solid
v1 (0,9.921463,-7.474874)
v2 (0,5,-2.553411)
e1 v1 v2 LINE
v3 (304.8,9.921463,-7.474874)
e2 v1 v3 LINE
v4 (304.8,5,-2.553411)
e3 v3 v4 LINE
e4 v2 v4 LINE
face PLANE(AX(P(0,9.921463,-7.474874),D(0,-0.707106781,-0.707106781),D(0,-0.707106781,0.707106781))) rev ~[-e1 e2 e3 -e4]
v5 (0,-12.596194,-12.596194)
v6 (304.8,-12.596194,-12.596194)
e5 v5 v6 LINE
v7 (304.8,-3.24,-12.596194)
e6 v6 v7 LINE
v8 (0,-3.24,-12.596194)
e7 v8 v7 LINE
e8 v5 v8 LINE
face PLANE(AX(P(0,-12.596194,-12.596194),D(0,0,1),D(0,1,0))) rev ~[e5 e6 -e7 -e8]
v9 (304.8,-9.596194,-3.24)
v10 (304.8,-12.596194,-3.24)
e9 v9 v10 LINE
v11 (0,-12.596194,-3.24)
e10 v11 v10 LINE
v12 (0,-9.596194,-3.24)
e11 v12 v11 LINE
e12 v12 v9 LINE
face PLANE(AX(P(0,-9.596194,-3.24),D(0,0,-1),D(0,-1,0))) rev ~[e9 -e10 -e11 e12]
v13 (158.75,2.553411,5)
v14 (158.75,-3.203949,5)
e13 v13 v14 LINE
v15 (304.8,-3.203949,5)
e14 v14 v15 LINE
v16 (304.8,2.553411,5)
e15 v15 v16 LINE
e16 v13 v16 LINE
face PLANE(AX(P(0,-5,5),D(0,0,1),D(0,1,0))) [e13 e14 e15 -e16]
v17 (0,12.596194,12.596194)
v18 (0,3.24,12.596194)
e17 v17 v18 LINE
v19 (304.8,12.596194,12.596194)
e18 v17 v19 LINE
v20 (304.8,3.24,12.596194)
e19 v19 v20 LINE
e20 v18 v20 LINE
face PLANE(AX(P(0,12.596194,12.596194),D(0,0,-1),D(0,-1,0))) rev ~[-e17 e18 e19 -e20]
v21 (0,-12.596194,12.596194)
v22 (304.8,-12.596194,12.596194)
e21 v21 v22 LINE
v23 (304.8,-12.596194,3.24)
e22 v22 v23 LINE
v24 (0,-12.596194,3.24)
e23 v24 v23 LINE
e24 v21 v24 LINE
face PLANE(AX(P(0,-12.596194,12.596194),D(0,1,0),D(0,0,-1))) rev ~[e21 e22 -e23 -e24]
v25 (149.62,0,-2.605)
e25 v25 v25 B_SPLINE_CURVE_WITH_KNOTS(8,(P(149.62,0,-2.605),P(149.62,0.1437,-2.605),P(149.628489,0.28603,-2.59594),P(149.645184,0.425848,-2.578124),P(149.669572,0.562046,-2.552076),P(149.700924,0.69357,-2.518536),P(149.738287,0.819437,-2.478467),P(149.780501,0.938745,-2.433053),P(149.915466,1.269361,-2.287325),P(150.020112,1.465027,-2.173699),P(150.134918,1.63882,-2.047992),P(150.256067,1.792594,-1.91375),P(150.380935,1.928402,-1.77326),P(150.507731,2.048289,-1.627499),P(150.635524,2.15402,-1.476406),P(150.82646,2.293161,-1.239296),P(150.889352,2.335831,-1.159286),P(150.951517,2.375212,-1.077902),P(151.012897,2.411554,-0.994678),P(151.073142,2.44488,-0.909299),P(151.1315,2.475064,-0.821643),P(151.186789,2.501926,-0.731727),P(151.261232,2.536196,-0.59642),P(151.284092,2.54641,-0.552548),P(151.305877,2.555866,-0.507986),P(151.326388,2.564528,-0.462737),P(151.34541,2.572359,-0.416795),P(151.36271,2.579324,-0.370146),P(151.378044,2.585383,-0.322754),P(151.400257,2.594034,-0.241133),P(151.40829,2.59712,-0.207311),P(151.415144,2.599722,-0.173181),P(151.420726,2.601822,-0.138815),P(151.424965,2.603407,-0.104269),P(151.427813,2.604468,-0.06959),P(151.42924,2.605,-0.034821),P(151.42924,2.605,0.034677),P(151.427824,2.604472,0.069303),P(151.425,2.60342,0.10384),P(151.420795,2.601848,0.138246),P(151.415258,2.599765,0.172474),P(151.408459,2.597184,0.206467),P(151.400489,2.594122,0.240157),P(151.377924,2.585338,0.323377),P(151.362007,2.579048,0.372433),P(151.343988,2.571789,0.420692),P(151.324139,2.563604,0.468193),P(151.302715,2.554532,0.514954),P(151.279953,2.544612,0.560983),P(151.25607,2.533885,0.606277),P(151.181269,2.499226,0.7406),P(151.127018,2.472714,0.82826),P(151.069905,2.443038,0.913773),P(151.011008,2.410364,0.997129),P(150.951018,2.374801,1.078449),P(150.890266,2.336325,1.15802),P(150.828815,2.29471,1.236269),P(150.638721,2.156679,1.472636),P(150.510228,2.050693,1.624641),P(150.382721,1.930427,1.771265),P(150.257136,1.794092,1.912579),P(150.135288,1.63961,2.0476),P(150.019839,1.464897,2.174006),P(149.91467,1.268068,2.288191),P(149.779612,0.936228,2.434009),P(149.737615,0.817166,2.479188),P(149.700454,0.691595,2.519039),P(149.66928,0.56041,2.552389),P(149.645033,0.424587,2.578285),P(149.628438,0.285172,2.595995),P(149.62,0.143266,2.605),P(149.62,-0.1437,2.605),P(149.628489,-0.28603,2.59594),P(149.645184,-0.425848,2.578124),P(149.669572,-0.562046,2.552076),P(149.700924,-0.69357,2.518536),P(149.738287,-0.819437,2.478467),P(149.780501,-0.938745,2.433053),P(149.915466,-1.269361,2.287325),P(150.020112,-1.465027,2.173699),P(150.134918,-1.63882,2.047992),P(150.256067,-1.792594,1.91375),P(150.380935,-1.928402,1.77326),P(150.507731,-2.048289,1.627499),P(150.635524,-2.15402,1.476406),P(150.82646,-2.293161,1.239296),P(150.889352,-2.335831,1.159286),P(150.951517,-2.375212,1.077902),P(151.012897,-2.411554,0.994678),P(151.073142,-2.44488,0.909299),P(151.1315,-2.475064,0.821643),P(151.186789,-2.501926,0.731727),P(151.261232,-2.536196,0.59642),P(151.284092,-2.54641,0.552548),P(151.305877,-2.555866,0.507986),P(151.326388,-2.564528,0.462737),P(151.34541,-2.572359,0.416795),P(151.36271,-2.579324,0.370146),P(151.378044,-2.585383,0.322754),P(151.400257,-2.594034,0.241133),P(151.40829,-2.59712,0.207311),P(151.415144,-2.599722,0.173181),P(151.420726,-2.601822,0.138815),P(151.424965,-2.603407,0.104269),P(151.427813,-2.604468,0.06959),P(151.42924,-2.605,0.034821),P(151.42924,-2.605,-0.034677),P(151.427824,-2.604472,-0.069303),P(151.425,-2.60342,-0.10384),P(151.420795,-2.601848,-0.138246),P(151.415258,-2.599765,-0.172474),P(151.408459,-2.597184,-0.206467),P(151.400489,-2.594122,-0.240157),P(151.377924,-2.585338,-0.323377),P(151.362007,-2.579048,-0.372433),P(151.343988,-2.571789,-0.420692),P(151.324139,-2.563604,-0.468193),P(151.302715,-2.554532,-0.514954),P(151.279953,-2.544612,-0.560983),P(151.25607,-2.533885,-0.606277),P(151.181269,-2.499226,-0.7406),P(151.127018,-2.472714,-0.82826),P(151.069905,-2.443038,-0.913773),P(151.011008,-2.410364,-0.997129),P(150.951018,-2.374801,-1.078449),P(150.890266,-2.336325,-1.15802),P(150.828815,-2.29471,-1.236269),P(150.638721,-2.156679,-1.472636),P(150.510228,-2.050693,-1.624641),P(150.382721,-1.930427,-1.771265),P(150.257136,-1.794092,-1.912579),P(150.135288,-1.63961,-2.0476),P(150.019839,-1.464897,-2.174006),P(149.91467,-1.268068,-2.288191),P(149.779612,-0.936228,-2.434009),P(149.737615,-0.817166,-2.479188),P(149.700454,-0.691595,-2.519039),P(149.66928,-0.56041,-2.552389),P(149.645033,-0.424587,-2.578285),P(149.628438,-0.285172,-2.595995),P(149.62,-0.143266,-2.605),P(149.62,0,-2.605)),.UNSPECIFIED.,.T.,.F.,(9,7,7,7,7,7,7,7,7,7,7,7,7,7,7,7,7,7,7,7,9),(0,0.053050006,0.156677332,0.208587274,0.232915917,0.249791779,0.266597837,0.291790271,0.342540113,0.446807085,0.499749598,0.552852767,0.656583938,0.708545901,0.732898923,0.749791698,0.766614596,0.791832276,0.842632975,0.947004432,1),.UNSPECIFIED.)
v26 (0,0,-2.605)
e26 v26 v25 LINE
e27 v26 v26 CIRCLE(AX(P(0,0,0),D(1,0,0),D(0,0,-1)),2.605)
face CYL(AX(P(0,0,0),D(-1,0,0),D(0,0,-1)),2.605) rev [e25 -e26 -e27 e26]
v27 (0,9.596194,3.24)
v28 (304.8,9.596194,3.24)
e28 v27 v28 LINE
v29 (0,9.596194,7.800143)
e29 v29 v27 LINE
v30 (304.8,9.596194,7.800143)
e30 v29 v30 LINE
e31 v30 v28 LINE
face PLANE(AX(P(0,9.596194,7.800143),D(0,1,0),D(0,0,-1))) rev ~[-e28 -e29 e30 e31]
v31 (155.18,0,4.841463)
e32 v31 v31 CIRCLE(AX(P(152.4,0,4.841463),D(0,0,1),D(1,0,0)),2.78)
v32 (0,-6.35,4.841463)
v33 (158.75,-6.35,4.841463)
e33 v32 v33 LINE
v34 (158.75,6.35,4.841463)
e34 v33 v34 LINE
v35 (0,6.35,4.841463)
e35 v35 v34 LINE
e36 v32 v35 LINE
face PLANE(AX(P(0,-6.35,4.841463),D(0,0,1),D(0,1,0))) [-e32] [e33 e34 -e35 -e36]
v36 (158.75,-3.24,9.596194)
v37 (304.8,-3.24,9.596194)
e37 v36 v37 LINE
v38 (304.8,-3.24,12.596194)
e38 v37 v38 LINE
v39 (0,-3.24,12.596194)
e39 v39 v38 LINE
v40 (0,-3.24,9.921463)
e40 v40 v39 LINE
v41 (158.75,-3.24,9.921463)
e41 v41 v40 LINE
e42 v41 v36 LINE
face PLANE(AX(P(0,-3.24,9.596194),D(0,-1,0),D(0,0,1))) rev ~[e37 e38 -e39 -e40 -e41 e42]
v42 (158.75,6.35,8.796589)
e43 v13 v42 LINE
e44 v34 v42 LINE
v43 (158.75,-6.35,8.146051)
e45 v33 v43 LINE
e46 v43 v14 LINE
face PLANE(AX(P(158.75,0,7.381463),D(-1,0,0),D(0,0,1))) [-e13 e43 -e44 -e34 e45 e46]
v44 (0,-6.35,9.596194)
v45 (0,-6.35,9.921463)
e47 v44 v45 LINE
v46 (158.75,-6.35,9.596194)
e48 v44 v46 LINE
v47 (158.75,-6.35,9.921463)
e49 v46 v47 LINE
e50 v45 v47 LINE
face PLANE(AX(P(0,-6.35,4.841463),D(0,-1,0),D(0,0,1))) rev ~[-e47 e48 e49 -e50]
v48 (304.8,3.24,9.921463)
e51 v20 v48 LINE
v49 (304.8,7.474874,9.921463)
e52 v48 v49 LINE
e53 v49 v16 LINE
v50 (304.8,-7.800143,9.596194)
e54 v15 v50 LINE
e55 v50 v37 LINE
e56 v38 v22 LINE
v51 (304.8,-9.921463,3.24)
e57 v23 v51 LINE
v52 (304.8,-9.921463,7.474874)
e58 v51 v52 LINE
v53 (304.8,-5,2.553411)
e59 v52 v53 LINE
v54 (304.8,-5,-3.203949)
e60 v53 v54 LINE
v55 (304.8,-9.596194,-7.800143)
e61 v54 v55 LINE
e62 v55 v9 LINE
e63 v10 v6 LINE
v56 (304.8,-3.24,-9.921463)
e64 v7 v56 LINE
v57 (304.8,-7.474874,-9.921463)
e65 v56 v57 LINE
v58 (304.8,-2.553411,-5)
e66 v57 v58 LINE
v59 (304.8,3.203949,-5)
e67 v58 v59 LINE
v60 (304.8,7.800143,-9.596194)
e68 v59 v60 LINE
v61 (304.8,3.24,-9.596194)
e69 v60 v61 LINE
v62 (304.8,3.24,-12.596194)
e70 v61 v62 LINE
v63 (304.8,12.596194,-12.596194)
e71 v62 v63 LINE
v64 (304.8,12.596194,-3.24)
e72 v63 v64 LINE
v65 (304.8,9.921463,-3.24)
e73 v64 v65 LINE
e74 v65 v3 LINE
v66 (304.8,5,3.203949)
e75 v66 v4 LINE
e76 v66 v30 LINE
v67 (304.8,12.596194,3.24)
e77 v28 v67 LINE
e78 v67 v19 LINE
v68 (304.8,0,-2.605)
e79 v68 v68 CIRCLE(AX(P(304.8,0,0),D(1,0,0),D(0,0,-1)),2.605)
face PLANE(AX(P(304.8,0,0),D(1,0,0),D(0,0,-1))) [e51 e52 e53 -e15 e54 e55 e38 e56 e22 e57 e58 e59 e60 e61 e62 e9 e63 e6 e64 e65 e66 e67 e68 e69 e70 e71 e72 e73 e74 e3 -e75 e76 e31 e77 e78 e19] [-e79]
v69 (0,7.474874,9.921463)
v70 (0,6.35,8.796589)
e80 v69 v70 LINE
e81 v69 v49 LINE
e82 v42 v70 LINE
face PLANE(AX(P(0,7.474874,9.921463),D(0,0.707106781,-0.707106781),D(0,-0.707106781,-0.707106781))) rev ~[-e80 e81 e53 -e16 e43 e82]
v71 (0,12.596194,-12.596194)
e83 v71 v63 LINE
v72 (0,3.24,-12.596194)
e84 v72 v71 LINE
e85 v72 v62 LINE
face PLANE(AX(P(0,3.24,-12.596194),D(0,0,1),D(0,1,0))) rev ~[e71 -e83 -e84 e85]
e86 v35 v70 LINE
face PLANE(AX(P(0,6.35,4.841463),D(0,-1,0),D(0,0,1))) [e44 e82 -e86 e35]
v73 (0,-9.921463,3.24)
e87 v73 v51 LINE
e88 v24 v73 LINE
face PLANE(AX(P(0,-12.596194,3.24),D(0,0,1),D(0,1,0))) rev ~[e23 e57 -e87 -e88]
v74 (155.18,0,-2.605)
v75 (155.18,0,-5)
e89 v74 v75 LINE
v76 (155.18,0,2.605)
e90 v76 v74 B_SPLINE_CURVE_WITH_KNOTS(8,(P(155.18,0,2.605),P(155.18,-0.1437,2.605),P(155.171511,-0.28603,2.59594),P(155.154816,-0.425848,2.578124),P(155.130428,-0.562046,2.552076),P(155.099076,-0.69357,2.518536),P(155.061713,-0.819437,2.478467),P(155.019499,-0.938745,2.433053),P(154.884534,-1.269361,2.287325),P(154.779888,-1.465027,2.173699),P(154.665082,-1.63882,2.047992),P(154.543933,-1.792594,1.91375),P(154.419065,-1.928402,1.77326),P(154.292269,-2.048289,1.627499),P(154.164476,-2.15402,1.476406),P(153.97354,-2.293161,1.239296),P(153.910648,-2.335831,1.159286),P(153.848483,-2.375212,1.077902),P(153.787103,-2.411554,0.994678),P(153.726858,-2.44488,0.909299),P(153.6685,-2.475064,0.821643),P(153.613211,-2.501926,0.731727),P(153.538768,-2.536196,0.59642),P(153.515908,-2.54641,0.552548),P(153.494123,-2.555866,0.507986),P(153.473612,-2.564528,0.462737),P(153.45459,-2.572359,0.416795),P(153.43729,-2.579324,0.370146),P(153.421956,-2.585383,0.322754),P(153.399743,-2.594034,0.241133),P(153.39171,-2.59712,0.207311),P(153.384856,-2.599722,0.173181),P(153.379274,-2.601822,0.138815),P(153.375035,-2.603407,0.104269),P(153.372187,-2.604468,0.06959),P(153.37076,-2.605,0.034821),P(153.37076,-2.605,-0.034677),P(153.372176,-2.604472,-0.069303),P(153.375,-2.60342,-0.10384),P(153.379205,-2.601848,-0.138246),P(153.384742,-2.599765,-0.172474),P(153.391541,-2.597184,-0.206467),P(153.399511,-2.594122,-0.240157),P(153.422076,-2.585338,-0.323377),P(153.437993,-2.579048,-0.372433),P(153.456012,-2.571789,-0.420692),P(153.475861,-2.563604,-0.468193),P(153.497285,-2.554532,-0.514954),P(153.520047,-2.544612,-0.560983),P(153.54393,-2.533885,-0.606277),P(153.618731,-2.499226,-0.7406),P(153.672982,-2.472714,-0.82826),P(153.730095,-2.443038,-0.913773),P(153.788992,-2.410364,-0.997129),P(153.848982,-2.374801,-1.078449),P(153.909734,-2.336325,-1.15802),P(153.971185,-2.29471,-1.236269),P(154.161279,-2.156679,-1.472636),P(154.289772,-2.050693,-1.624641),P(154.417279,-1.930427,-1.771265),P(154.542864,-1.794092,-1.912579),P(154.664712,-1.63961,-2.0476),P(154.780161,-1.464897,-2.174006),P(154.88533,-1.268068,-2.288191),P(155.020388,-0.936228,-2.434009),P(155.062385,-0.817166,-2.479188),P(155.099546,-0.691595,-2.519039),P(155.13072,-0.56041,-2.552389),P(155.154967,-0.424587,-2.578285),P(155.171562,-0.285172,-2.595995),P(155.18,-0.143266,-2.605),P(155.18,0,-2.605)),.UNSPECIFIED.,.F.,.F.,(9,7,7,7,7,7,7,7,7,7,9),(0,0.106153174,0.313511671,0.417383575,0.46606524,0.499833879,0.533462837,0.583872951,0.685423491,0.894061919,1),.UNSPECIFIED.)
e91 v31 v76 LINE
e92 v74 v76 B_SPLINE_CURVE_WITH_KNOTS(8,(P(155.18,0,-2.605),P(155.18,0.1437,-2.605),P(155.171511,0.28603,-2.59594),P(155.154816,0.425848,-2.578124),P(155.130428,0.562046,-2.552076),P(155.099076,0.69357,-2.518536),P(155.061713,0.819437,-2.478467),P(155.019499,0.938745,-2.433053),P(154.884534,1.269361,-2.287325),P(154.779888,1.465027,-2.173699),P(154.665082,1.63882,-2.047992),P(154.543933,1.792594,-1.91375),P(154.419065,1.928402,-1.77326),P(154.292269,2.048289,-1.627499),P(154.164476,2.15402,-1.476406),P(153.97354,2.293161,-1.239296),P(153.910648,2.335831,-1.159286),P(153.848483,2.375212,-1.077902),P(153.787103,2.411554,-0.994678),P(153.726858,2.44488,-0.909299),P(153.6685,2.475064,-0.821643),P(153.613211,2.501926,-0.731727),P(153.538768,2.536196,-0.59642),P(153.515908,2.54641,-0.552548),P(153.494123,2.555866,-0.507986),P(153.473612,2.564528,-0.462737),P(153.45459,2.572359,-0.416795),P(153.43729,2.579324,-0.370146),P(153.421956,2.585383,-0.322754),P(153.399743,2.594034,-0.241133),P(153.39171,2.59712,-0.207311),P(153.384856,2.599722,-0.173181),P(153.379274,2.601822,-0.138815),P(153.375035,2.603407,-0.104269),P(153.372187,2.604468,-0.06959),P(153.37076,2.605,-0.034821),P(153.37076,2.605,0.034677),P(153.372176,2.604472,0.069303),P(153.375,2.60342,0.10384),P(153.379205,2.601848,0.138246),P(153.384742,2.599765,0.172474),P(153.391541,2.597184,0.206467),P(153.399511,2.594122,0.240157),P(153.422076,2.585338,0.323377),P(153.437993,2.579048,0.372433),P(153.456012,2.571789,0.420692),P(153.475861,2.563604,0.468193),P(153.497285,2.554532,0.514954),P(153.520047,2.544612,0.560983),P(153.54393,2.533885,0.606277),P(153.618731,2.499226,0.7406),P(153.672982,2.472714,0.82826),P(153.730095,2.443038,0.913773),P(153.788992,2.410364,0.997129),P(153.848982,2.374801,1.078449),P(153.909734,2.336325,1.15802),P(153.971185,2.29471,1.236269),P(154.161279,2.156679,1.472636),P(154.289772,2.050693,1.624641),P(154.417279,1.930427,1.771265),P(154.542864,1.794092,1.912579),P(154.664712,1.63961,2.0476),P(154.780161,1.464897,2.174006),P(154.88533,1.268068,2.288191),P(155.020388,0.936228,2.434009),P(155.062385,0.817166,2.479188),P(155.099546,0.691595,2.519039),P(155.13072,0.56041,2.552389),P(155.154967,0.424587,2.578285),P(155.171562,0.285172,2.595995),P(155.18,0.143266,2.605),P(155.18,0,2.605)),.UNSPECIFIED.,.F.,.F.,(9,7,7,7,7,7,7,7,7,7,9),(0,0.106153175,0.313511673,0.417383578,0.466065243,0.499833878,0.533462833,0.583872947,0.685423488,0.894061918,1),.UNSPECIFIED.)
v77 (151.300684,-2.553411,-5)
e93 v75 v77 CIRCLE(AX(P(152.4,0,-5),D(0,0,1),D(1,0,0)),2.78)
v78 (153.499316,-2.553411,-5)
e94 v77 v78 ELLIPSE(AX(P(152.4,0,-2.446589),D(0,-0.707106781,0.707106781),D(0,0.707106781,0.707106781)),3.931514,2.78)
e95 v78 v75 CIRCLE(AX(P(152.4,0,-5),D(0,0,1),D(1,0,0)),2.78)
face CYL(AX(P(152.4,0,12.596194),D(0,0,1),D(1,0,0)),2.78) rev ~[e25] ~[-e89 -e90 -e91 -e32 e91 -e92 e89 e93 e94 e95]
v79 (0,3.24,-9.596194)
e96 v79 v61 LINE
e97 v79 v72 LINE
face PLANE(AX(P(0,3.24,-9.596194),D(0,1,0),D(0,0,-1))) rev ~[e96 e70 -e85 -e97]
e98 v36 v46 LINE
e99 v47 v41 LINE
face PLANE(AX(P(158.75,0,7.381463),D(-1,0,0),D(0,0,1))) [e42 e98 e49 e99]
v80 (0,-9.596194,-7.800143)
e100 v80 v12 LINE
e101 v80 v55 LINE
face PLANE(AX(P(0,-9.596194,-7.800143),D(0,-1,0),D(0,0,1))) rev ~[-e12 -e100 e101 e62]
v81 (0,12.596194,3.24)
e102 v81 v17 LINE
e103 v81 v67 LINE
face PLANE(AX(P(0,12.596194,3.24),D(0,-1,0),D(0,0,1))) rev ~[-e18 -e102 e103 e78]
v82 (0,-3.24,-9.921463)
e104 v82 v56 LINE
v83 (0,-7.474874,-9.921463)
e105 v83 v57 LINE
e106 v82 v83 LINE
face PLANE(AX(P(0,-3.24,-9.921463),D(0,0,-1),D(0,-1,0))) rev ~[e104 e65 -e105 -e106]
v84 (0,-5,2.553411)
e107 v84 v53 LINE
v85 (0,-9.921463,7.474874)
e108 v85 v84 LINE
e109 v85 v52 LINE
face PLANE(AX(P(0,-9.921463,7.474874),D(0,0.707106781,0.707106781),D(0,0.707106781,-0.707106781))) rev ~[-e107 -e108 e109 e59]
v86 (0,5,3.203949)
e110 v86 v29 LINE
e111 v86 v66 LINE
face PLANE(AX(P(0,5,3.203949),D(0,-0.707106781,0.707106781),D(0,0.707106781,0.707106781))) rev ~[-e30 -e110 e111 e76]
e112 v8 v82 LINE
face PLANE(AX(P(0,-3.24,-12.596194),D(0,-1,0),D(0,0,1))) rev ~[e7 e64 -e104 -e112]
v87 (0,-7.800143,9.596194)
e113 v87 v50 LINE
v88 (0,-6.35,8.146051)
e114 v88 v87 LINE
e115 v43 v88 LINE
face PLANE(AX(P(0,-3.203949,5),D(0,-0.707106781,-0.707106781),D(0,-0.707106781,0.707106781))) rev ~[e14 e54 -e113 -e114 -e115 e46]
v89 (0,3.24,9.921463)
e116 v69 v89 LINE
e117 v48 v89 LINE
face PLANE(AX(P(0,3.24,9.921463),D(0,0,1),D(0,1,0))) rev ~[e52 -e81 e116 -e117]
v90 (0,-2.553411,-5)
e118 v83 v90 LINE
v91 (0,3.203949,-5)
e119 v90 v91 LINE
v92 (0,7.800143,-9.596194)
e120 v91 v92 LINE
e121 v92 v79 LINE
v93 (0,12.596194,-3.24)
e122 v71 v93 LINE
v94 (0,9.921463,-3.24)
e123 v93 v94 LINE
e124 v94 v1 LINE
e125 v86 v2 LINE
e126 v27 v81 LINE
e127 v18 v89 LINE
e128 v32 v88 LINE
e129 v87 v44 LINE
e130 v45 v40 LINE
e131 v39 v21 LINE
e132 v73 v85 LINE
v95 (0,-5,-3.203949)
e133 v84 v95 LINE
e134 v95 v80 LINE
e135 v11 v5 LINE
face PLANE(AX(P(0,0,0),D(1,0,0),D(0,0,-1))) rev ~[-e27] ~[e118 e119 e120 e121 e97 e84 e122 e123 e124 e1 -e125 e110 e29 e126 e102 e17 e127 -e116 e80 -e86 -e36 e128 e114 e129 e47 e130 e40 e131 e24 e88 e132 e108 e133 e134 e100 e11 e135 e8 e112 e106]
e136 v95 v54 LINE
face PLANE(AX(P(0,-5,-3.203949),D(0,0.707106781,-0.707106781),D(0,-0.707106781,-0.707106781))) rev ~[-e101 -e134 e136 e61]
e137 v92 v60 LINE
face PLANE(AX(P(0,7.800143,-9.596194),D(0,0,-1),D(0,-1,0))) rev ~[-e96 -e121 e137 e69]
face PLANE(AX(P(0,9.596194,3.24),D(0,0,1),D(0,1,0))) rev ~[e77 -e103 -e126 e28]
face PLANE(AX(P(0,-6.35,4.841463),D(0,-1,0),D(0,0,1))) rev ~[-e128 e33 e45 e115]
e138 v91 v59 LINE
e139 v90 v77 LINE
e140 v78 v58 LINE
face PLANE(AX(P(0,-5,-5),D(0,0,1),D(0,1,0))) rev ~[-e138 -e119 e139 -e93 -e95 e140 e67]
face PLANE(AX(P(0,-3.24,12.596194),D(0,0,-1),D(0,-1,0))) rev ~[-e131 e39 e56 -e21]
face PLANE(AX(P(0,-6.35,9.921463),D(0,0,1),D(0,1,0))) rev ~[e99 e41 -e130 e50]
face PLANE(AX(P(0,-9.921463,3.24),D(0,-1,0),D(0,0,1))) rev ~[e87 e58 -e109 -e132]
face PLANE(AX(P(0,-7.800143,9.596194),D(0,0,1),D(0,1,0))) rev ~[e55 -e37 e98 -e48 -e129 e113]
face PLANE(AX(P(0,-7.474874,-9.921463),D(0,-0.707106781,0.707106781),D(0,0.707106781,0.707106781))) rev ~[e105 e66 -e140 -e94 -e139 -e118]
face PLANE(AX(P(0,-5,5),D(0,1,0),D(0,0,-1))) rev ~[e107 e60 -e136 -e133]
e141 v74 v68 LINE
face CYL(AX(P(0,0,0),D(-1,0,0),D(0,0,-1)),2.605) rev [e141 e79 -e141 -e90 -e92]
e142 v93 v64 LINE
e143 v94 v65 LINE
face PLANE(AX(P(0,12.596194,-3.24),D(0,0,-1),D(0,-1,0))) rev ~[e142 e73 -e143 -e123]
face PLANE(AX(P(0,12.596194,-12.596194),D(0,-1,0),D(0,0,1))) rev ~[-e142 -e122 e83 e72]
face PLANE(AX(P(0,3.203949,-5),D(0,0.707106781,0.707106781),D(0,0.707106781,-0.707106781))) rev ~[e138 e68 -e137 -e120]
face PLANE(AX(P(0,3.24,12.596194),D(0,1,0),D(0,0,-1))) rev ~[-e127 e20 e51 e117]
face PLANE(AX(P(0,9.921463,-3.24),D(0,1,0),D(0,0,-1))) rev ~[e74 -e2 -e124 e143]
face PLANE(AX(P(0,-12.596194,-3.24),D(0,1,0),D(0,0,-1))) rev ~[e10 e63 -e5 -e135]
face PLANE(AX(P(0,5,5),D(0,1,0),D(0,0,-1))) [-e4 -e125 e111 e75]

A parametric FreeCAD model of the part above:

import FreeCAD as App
import Part
import Sketcher

V = App.Vector
Q = App.Units.Quantity


def add_polygon(sketch, points):
    """Adds a closed chain of lines whose ends are joined by coincident constraints."""
    first, n = sketch.GeometryCount, len(points)
    for a, b in zip(points, points[1:] + points[:1]):
        sketch.addGeometry(Part.LineSegment(App.Vector(*a, 0), App.Vector(*b, 0)), False)
    for i in range(n):
        sketch.addConstraint(Sketcher.Constraint("Coincident", first + i, 2, first + (i + 1) % n, 1))

doc = App.newDocument("Part")
body = doc.addObject("PartDesign::Body", "Body")

# Sketch on YZ plane
sketch1 = body.newObject("Sketcher::SketchObject", "Sketch")
sketch1.AttachmentSupport = (doc.getObject("YZ_Plane"), [""])
sketch1.MapMode = "FlatFace"
add_polygon(sketch1, [(5, 5), (-5, 5), (-5, -5), (3.203949, -5), (7.800143, -9.596194), (3.24, -9.596194), (3.24, -12.596194), (12.596194, -12.596194), (12.596194, -3.24), (9.921463, -3.24), (9.921463, -7.474874), (5, -2.553411)])  # lines 0-11
sketch1.addGeometry(Part.Circle(V(0, 0, 0), V(0, 0, 1), 2.605), False)  # 12
sketch1.addConstraint([
    Sketcher.Constraint("Horizontal", 0),
    Sketcher.Constraint("Vertical", 1),
    Sketcher.Constraint("Horizontal", 2),
    Sketcher.Constraint("Horizontal", 4),
    Sketcher.Constraint("Vertical", 5),
    Sketcher.Constraint("Horizontal", 6),
    Sketcher.Constraint("Vertical", 7),
    Sketcher.Constraint("Horizontal", 8),
    Sketcher.Constraint("Vertical", 9),
    Sketcher.Constraint("Vertical", 11),
    Sketcher.Constraint("Coincident", 12, 3, -1, 1),
    Sketcher.Constraint("Symmetric", 1, 2, 11, 2, -1, 1),
    Sketcher.Constraint("Parallel", 3, 10),
    Sketcher.Constraint("Equal", 0, 1),
    Sketcher.Constraint("Equal", 6, 7),
    Sketcher.Constraint("Diameter", 12, 5.21),
    Sketcher.Constraint("DistanceX", 0, 2, 0, 1, 10.0),
    Sketcher.Constraint("DistanceY", 5, 2, 5, 1, 3.0),
    Sketcher.Constraint("Angle", 3, Q("-45 deg")),
    Sketcher.Constraint("Distance", 3, 6.5),
    Sketcher.Constraint("Distance", 10, 6.96),
    Sketcher.Constraint("DistanceX", -1, 1, 4, 2, 3.24),
    Sketcher.Constraint("DistanceY", 7, 2, -1, 1, 3.24),
    Sketcher.Constraint("DistanceX", 2, 1, 2, 2, 8.203949),
    Sketcher.Constraint("DistanceY", 11, 1, 11, 2, 7.553411),
])
pad1 = body.newObject("PartDesign::Pad", "Pad")
pad1.Profile = sketch1
pad1.Length = 304.8
doc.recompute()

polarpattern = body.newObject("PartDesign::PolarPattern", "PolarPattern")
polarpattern.Originals = [pad1]
polarpattern.Axis = (doc.getObject("X_Axis"), [""])
polarpattern.Angle = 360
polarpattern.Occurrences = 4
body.Tip = polarpattern

# Sketch on XY plane
sketch2 = body.newObject("Sketcher::SketchObject", "Sketch001")
sketch2.AttachmentSupport = (doc.getObject("XY_Plane"), [""])
sketch2.MapMode = "FlatFace"
sketch2.AttachmentOffset = App.Placement(V(0, 0, 12.596194), App.Rotation())
sketch2.addGeometry(Part.Circle(V(152.4, 0, 0), V(0, 0, 1), 2.78), False)
sketch2.addConstraint([
    Sketcher.Constraint("PointOnObject", 0, 3, -1),
    Sketcher.Constraint("Diameter", 0, 5.56),
    Sketcher.Constraint("DistanceX", -1, 1, 0, 3, 152.4),
])
pocket1 = body.newObject("PartDesign::Pocket", "Pocket")
pocket1.Profile = sketch2
pocket1.Length = 30

# Sketch on YZ plane
sketch3 = body.newObject("Sketcher::SketchObject", "Sketch002")
sketch3.AttachmentSupport = (doc.getObject("YZ_Plane"), [""])
sketch3.MapMode = "FlatFace"
add_polygon(sketch3, [(6.35, 4.841463), (-6.35, 4.841463), (-6.35, 9.921463), (6.35, 9.921463)])  # lines 0-3
sketch3.addConstraint([
    Sketcher.Constraint("Horizontal", 0),
    Sketcher.Constraint("Vertical", 1),
    Sketcher.Constraint("Horizontal", 2),
    Sketcher.Constraint("Vertical", 3),
    Sketcher.Constraint("DistanceX", 0, 2, 0, 1, 12.7),
    Sketcher.Constraint("DistanceY", 1, 1, 1, 2, 5.08),
    Sketcher.Constraint("DistanceX", 0, 2, -1, 1, 6.35),
    Sketcher.Constraint("DistanceY", -1, 1, 0, 2, 4.841463),
])
pocket2 = body.newObject("PartDesign::Pocket", "Pocket001")
pocket2.Profile = sketch3
pocket2.Length = 158.75
pocket2.Reversed = True

doc.recompute()
